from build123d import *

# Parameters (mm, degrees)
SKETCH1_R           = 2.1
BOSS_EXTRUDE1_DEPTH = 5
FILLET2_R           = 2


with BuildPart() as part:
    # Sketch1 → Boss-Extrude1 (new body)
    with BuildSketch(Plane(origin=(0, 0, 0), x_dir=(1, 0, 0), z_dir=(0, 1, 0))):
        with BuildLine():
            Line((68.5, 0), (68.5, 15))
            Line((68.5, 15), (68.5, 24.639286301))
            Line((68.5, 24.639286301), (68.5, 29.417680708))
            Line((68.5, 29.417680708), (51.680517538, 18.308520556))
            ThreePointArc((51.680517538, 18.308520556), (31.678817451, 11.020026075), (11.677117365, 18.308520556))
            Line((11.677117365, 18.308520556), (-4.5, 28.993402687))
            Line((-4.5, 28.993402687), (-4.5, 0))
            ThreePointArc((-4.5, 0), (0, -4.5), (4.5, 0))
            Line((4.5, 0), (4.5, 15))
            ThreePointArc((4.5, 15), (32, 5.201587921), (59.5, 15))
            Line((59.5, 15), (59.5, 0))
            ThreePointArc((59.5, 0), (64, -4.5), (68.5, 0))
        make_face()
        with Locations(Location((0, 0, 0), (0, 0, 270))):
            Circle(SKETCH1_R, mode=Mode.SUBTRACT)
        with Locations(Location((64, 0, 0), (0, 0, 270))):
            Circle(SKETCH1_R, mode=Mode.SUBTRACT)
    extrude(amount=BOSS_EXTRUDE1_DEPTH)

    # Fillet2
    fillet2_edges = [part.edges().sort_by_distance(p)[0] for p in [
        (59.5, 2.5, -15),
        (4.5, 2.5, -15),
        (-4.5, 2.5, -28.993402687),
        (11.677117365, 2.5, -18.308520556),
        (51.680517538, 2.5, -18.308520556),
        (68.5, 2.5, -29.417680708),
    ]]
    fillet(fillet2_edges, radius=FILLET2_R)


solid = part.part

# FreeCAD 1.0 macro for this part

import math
import FreeCAD as App
import Part
import Sketcher


def edges_at(feature, points):
    """Names of the edges that pass closest to the given points."""
    edges = feature.Shape.Edges
    near = lambda p: min(range(len(edges)), key=lambda i: edges[i].distToShape(Part.Vertex(*p))[0])
    return sorted({f"Edge{near(p) + 1}" for p in points})

doc = App.newDocument("Part")
body = doc.addObject("PartDesign::Body", "Body")

# Sketch on XZ plane
sketch1 = doc.addObject("Sketcher::SketchObject", "Sketch")
body.addObject(sketch1)
sketch1.AttachmentSupport = (doc.XZ_Plane, [""])
sketch1.MapMode = "FlatFace"
sketch1.addGeometry(Part.LineSegment(App.Vector(68.5, 0, 0), App.Vector(68.5, -29.4, 0)), False)
sketch1.addGeometry(Part.LineSegment(App.Vector(68.5, -29.4, 0), App.Vector(51.7, -18.3, 0)), False)
sketch1.addGeometry(Part.ArcOfCircle(Part.Circle(App.Vector(31.7, -42.1, 0), App.Vector(0, 0, 1), 31.1), math.radians(50), math.radians(130)), False)
sketch1.addGeometry(Part.LineSegment(App.Vector(11.7, -18.3, 0), App.Vector(-4.5, -29, 0)), False)
sketch1.addGeometry(Part.LineSegment(App.Vector(-4.5, -29, 0), App.Vector(-4.5, 0, 0)), False)
sketch1.addGeometry(Part.ArcOfCircle(Part.Circle(App.Vector(0, 0, 0), App.Vector(0, 0, 1), 4.5), math.radians(0), math.radians(180)), False)
sketch1.addGeometry(Part.LineSegment(App.Vector(4.5, 0, 0), App.Vector(4.5, -15, 0)), False)
sketch1.addGeometry(Part.ArcOfCircle(Part.Circle(App.Vector(32, -48.7, 0), App.Vector(0, 0, 1), 43.5), math.radians(51), math.radians(129)), False)
sketch1.addGeometry(Part.LineSegment(App.Vector(59.5, -15, 0), App.Vector(59.5, 0, 0)), False)
sketch1.addGeometry(Part.ArcOfCircle(Part.Circle(App.Vector(64, 0, 0), App.Vector(0, 0, 1), 4.5), math.radians(0), math.radians(180)), False)
sketch1.addGeometry(Part.Circle(App.Vector(0, 0, 0), App.Vector(0, 0, 1), 2.1), False)
sketch1.addGeometry(Part.Circle(App.Vector(64, 0, 0), App.Vector(0, 0, 1), 2.1), False)
sketch1.addConstraint(Sketcher.Constraint("Coincident", 0, 2, 1, 1))
sketch1.addConstraint(Sketcher.Constraint("Coincident", 1, 2, 2, 1))
sketch1.addConstraint(Sketcher.Constraint("Coincident", 2, 2, 3, 1))
sketch1.addConstraint(Sketcher.Constraint("Coincident", 3, 2, 4, 1))
sketch1.addConstraint(Sketcher.Constraint("Tangent", 4, 2, 5, 2))
sketch1.addConstraint(Sketcher.Constraint("Tangent", 5, 1, 6, 1))
sketch1.addConstraint(Sketcher.Constraint("Coincident", 6, 2, 7, 2))
sketch1.addConstraint(Sketcher.Constraint("Coincident", 7, 1, 8, 1))
sketch1.addConstraint(Sketcher.Constraint("Tangent", 8, 2, 9, 2))
sketch1.addConstraint(Sketcher.Constraint("Tangent", 9, 1, 0, 1))
sketch1.addConstraint(Sketcher.Constraint("Vertical", 0))
sketch1.addConstraint(Sketcher.Constraint("Vertical", 4))
sketch1.addConstraint(Sketcher.Constraint("Vertical", 6))
sketch1.addConstraint(Sketcher.Constraint("Vertical", 8))
sketch1.addConstraint(Sketcher.Constraint("Coincident", 5, 3, -1, 1))
sketch1.addConstraint(Sketcher.Constraint("Coincident", 10, 3, -1, 1))
sketch1.addConstraint(Sketcher.Constraint("Coincident", 11, 3, 9, 3))
sketch1.addConstraint(Sketcher.Constraint("Equal", 5, 9))
sketch1.addConstraint(Sketcher.Constraint("Equal", 10, 11))
sketch1.addConstraint(Sketcher.Constraint("PointOnObject", 9, 3, -1))
sketch1.addConstraint(Sketcher.Constraint("Horizontal", 1, 2, 2, 2))
sketch1.addConstraint(Sketcher.Constraint("Horizontal", 6, 2, 7, 1))
sketch1.addConstraint(Sketcher.Constraint("Diameter", 10, 4.2))
sketch1.addConstraint(Sketcher.Constraint("Radius", 5, 4.5))
sketch1.addConstraint(Sketcher.Constraint("DistanceY", 6, 2, 6, 1, 15.0))
sketch1.addConstraint(Sketcher.Constraint("DistanceX", -1, 1, 7, 3, 32.0))
sketch1.addConstraint(Sketcher.Constraint("Radius", 2, 31.089422))
sketch1.addConstraint(Sketcher.Constraint("Radius", 7, 43.489643))
sketch1.addConstraint(Sketcher.Constraint("DistanceY", 0, 2, 0, 1, 29.417681))
sketch1.addConstraint(Sketcher.Constraint("DistanceX", 2, 3, 1, 2, 20.0017))
sketch1.addConstraint(Sketcher.Constraint("Distance", 3, 19.38726))
sketch1.addConstraint(Sketcher.Constraint("DistanceY", 4, 1, 4, 2, 28.993403))
sketch1.addConstraint(Sketcher.Constraint("DistanceY", 1, 2, -1, 1, 18.308521))
pad1 = doc.addObject("PartDesign::Pad", "Pad")
body.addObject(pad1)
pad1.Profile = sketch1
pad1.Length = 5
pad1.Reversed = True
doc.recompute()

fillet = doc.addObject("PartDesign::Fillet", "Fillet")
body.addObject(fillet)
fillet.Base = (pad1, edges_at(pad1, [
    (59.5, 2.5, -15),
    (4.5, 2.5, -15),
    (-4.5, 2.5, -28.993),
    (11.677, 2.5, -18.309),
    (51.681, 2.5, -18.309),
    (68.5, 2.5, -29.418),
]))
fillet.Radius = 2

doc.recompute()
